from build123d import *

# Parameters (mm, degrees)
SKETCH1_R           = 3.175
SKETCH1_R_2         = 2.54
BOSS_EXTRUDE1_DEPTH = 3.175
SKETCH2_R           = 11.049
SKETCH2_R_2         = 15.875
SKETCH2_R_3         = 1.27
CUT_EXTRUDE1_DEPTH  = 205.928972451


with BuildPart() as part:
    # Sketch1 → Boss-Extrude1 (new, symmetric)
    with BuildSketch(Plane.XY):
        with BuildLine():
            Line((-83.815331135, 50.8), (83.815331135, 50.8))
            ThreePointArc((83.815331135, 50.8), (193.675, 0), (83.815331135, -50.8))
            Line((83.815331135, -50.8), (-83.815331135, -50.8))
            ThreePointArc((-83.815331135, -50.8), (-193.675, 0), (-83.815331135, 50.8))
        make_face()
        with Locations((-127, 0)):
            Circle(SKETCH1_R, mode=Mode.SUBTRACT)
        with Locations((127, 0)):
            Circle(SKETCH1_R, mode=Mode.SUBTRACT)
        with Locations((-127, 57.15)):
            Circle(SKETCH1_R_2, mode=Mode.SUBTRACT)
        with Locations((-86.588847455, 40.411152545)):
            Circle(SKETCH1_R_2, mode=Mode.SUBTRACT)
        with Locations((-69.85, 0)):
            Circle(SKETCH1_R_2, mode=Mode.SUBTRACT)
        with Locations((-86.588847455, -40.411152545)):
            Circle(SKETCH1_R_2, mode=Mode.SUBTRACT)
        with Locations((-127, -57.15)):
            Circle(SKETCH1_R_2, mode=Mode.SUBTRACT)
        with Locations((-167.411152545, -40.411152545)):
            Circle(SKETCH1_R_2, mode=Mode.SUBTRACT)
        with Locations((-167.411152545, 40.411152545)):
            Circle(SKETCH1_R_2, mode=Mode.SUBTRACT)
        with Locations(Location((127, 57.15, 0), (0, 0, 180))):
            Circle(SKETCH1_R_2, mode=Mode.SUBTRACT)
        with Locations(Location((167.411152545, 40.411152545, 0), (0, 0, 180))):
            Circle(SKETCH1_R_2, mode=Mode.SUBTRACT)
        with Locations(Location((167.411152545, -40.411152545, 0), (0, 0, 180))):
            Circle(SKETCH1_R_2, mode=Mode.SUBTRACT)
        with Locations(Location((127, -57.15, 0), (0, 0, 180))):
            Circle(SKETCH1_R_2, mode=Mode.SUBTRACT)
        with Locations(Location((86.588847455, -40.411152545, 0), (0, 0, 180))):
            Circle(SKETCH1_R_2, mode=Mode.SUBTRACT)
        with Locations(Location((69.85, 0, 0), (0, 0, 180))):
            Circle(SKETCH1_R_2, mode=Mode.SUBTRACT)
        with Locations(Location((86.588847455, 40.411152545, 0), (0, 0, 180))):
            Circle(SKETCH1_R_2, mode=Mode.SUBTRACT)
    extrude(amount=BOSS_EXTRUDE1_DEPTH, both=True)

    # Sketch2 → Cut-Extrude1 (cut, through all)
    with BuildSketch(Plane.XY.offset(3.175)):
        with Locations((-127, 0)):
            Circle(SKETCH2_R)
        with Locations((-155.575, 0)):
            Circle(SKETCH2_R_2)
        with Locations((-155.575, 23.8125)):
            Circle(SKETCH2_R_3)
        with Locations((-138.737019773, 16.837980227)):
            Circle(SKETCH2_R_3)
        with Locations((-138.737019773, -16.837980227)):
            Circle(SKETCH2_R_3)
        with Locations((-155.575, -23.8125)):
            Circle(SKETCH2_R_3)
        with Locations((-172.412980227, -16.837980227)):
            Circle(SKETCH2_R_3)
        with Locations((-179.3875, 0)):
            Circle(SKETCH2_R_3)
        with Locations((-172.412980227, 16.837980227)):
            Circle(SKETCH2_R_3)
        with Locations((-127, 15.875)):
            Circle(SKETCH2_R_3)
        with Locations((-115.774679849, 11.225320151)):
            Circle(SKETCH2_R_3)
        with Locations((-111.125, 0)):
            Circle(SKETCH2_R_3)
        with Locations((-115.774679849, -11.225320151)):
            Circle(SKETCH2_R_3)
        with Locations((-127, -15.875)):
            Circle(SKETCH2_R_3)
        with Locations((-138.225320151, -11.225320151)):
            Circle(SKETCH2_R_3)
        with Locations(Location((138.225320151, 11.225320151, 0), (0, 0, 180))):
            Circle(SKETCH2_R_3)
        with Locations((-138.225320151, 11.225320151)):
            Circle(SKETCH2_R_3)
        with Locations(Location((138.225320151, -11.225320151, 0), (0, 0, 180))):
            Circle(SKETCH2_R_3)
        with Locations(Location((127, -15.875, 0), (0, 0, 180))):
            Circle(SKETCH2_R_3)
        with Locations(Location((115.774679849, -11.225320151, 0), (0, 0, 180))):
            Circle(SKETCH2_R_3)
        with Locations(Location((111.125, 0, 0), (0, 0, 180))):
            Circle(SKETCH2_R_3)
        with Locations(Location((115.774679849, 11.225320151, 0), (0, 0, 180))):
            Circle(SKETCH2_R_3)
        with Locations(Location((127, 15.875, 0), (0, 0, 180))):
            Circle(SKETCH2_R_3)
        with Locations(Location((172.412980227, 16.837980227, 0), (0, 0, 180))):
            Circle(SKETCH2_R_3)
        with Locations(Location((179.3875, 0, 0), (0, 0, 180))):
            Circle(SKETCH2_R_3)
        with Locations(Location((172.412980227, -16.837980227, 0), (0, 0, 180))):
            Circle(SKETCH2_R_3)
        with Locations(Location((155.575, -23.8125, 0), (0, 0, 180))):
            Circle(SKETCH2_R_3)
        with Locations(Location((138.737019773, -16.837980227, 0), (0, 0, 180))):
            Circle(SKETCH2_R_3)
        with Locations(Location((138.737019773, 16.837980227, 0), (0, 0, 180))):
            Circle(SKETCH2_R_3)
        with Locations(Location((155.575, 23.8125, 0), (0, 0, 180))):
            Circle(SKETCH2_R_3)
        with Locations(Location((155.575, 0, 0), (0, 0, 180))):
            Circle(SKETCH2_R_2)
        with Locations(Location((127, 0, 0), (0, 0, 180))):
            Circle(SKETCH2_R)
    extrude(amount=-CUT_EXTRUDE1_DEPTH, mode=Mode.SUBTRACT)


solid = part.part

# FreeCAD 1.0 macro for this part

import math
import FreeCAD as App
import Part
import Sketcher
from FreeCAD import Vector
Q = App.Units.Quantity

doc = App.newDocument("Part")
body = doc.addObject("PartDesign::Body", "Body")

# Sketch on XY plane
sketch1 = body.newObject("Sketcher::SketchObject", "Sketch")
sketch1.AttachmentSupport = (doc.getObject("XY_Plane"), [""])
sketch1.MapMode = "FlatFace"
sketch1.addGeometry(Part.LineSegment(Vector(83.8, 50.8, 0), Vector(-83.8, 50.8, 0)), False)
sketch1.addGeometry(Part.ArcOfCircle(Part.Circle(Vector(-127, 0, 0), Vector(0, 0, 1), 66.7), math.radians(50), math.radians(310)), False)
sketch1.addGeometry(Part.LineSegment(Vector(-83.8, -50.8, 0), Vector(83.8, -50.8, 0)), False)
sketch1.addGeometry(Part.ArcOfCircle(Part.Circle(Vector(127, 0, 0), Vector(0, 0, 1), 66.7), math.radians(-130), math.radians(130)), False)
sketch1.addGeometry(Part.Circle(Vector(127, -57.1, 0), Vector(0, 0, 1), 2.5), False)
sketch1.addGeometry(Part.Circle(Vector(167.4, -40.4, 0), Vector(0, 0, 1), 2.5), False)
sketch1.addGeometry(Part.Circle(Vector(86.6, -40.4, 0), Vector(0, 0, 1), 2.5), False)
sketch1.addGeometry(Part.Circle(Vector(-127, -57.1, 0), Vector(0, 0, 1), 2.5), False)
sketch1.addGeometry(Part.Circle(Vector(-86.6, -40.4, 0), Vector(0, 0, 1), 2.5), False)
sketch1.addGeometry(Part.Circle(Vector(-167.4, -40.4, 0), Vector(0, 0, 1), 2.5), False)
sketch1.addGeometry(Part.Circle(Vector(127, 0, 0), Vector(0, 0, 1), 3.2), False)
sketch1.addGeometry(Part.Circle(Vector(69.8, 0, 0), Vector(0, 0, 1), 2.5), False)
sketch1.addGeometry(Part.Circle(Vector(167.4, 40.4, 0), Vector(0, 0, 1), 2.5), False)
sketch1.addGeometry(Part.Circle(Vector(86.6, 40.4, 0), Vector(0, 0, 1), 2.5), False)
sketch1.addGeometry(Part.Circle(Vector(127, 57.1, 0), Vector(0, 0, 1), 2.5), False)
sketch1.addGeometry(Part.Circle(Vector(-69.8, 0, 0), Vector(0, 0, 1), 2.5), False)
sketch1.addGeometry(Part.Circle(Vector(-127, 0, 0), Vector(0, 0, 1), 3.2), False)
sketch1.addGeometry(Part.Circle(Vector(-86.6, 40.4, 0), Vector(0, 0, 1), 2.5), False)
sketch1.addGeometry(Part.Circle(Vector(-167.4, 40.4, 0), Vector(0, 0, 1), 2.5), False)
sketch1.addGeometry(Part.Circle(Vector(-127, 57.1, 0), Vector(0, 0, 1), 2.5), False)
sketch1.addConstraint(Sketcher.Constraint("Coincident", 0, 2, 1, 1))
sketch1.addConstraint(Sketcher.Constraint("Coincident", 1, 2, 2, 1))
sketch1.addConstraint(Sketcher.Constraint("Coincident", 2, 2, 3, 1))
sketch1.addConstraint(Sketcher.Constraint("Coincident", 3, 2, 0, 1))
sketch1.addConstraint(Sketcher.Constraint("Horizontal", 0))
sketch1.addConstraint(Sketcher.Constraint("Horizontal", 2))
sketch1.addConstraint(Sketcher.Constraint("Coincident", 10, 3, 3, 3))
sketch1.addConstraint(Sketcher.Constraint("Coincident", 16, 3, 1, 3))
sketch1.addConstraint(Sketcher.Constraint("Equal", 1, 3))
sketch1.addConstraint(Sketcher.Constraint("Equal", 4, 5))
sketch1.addConstraint(Sketcher.Constraint("Equal", 5, 6))
sketch1.addConstraint(Sketcher.Constraint("Equal", 6, 7))
sketch1.addConstraint(Sketcher.Constraint("Equal", 7, 8))
sketch1.addConstraint(Sketcher.Constraint("Equal", 8, 9))
sketch1.addConstraint(Sketcher.Constraint("Equal", 9, 11))
sketch1.addConstraint(Sketcher.Constraint("Equal", 11, 12))
sketch1.addConstraint(Sketcher.Constraint("Equal", 12, 13))
sketch1.addConstraint(Sketcher.Constraint("Equal", 13, 14))
sketch1.addConstraint(Sketcher.Constraint("Equal", 14, 15))
sketch1.addConstraint(Sketcher.Constraint("Equal", 10, 16))
sketch1.addConstraint(Sketcher.Constraint("Equal", 15, 17))
sketch1.addConstraint(Sketcher.Constraint("Equal", 17, 18))
sketch1.addConstraint(Sketcher.Constraint("Equal", 18, 19))
sketch1.addConstraint(Sketcher.Constraint("Symmetric", 1, 3, 3, 3, -1, 1))
sketch1.addConstraint(Sketcher.Constraint("Symmetric", 9, 3, 12, 3, -1, 1))
sketch1.addConstraint(Sketcher.Constraint("Symmetric", 8, 3, 13, 3, -1, 1))
sketch1.addConstraint(Sketcher.Constraint("Symmetric", 7, 3, 14, 3, -1, 1))
sketch1.addConstraint(Sketcher.Constraint("Symmetric", 11, 3, 15, 3, -1, 1))
sketch1.addConstraint(Sketcher.Constraint("Symmetric", 6, 3, 17, 3, -1, 1))
sketch1.addConstraint(Sketcher.Constraint("Symmetric", 5, 3, 18, 3, -1, 1))
sketch1.addConstraint(Sketcher.Constraint("Symmetric", 4, 3, 19, 3, -1, 1))
sketch1.addConstraint(Sketcher.Constraint("Symmetric", 4, 3, 7, 3, -2))
sketch1.addConstraint(Sketcher.Constraint("Symmetric", 6, 3, 8, 3, -2))
sketch1.addConstraint(Sketcher.Constraint("Symmetric", 5, 3, 9, 3, -2))
sketch1.addConstraint(Sketcher.Constraint("Symmetric", 0, 2, 1, 2, -1))
sketch1.addConstraint(Sketcher.Constraint("PointOnObject", 11, 3, -1))
sketch1.addConstraint(Sketcher.Constraint("Horizontal", 5, 3, 6, 3))
sketch1.addConstraint(Sketcher.Constraint("Vertical", 3, 3, 4, 3))
sketch1.addConstraint(Sketcher.Constraint("Diameter", 4, Q("0.2 in")))
sketch1.addConstraint(Sketcher.Constraint("Diameter", 10, Q("0.25 in")))
sketch1.addConstraint(Sketcher.Constraint("DistanceX", 1, 3, -1, 1, Q("5 in")))
sketch1.addConstraint(Sketcher.Constraint("DistanceY", -1, 1, 0, 2, Q("2 in")))
sketch1.addConstraint(Sketcher.Constraint("Radius", 1, Q("2.625 in")))
sketch1.addConstraint(Sketcher.Constraint("DistanceX", 9, 3, 6, 3, Q("10 in")))
sketch1.addConstraint(Sketcher.Constraint("DistanceX", 15, 3, 11, 3, Q("5.5 in")))
sketch1.addConstraint(Sketcher.Constraint("DistanceY", 4, 3, -1, 1, Q("2.25 in")))
sketch1.addConstraint(Sketcher.Constraint("DistanceX", -1, 1, 5, 3, Q("167.411153 mm")))
sketch1.addConstraint(Sketcher.Constraint("DistanceY", 5, 3, -1, 1, Q("40.411153 mm")))
pad1 = body.newObject("PartDesign::Pad", "Pad")
pad1.Profile = sketch1
pad1.Length = Q("0.25 in")
pad1.Midplane = True

# Sketch on XY plane
sketch2 = body.newObject("Sketcher::SketchObject", "Sketch001")
sketch2.AttachmentSupport = (doc.getObject("XY_Plane"), [""])
sketch2.MapMode = "FlatFace"
sketch2.AttachmentOffset = App.Placement(Vector(0, 0, 0.125 * 25.4), App.Rotation())
sketch2.addGeometry(Part.Circle(Vector(-127, 0, 0), Vector(0, 0, 1), 11), False)
sketch2.addGeometry(Part.Circle(Vector(-155.6, 0, 0), Vector(0, 0, 1), 15.9), False)
sketch2.addGeometry(Part.Circle(Vector(-155.6, 23.8, 0), Vector(0, 0, 1), 1.3), False)
sketch2.addGeometry(Part.Circle(Vector(-138.7, 16.8, 0), Vector(0, 0, 1), 1.3), False)
sketch2.addGeometry(Part.Circle(Vector(-138.7, -16.8, 0), Vector(0, 0, 1), 1.3), False)
sketch2.addGeometry(Part.Circle(Vector(-155.6, -23.8, 0), Vector(0, 0, 1), 1.3), False)
sketch2.addGeometry(Part.Circle(Vector(-172.4, -16.8, 0), Vector(0, 0, 1), 1.3), False)
sketch2.addGeometry(Part.Circle(Vector(-179.4, 0, 0), Vector(0, 0, 1), 1.3), False)
sketch2.addGeometry(Part.Circle(Vector(-172.4, 16.8, 0), Vector(0, 0, 1), 1.3), False)
sketch2.addGeometry(Part.Circle(Vector(-127, 15.9, 0), Vector(0, 0, 1), 1.3), False)
sketch2.addGeometry(Part.Circle(Vector(-115.8, 11.2, 0), Vector(0, 0, 1), 1.3), False)
sketch2.addGeometry(Part.Circle(Vector(-111.1, 0, 0), Vector(0, 0, 1), 1.3), False)
sketch2.addGeometry(Part.Circle(Vector(-115.8, -11.2, 0), Vector(0, 0, 1), 1.3), False)
sketch2.addGeometry(Part.Circle(Vector(-127, -15.9, 0), Vector(0, 0, 1), 1.3), False)
sketch2.addGeometry(Part.Circle(Vector(-138.2, -11.2, 0), Vector(0, 0, 1), 1.3), False)
sketch2.addGeometry(Part.Circle(Vector(138.2, 11.2, 0), Vector(0, 0, 1), 1.3), False)
sketch2.addGeometry(Part.Circle(Vector(-138.2, 11.2, 0), Vector(0, 0, 1), 1.3), False)
sketch2.addGeometry(Part.Circle(Vector(138.2, -11.2, 0), Vector(0, 0, 1), 1.3), False)
sketch2.addGeometry(Part.Circle(Vector(127, -15.9, 0), Vector(0, 0, 1), 1.3), False)
sketch2.addGeometry(Part.Circle(Vector(115.8, -11.2, 0), Vector(0, 0, 1), 1.3), False)
sketch2.addGeometry(Part.Circle(Vector(111.1, 0, 0), Vector(0, 0, 1), 1.3), False)
sketch2.addGeometry(Part.Circle(Vector(115.8, 11.2, 0), Vector(0, 0, 1), 1.3), False)
sketch2.addGeometry(Part.Circle(Vector(127, 15.9, 0), Vector(0, 0, 1), 1.3), False)
sketch2.addGeometry(Part.Circle(Vector(172.4, 16.8, 0), Vector(0, 0, 1), 1.3), False)
sketch2.addGeometry(Part.Circle(Vector(179.4, 0, 0), Vector(0, 0, 1), 1.3), False)
sketch2.addGeometry(Part.Circle(Vector(172.4, -16.8, 0), Vector(0, 0, 1), 1.3), False)
sketch2.addGeometry(Part.Circle(Vector(155.6, -23.8, 0), Vector(0, 0, 1), 1.3), False)
sketch2.addGeometry(Part.Circle(Vector(138.7, -16.8, 0), Vector(0, 0, 1), 1.3), False)
sketch2.addGeometry(Part.Circle(Vector(138.7, 16.8, 0), Vector(0, 0, 1), 1.3), False)
sketch2.addGeometry(Part.Circle(Vector(155.6, 23.8, 0), Vector(0, 0, 1), 1.3), False)
sketch2.addGeometry(Part.Circle(Vector(155.6, 0, 0), Vector(0, 0, 1), 15.9), False)
sketch2.addGeometry(Part.Circle(Vector(127, 0, 0), Vector(0, 0, 1), 11), False)
sketch2.addConstraint(Sketcher.Constraint("Equal", 2, 3))
sketch2.addConstraint(Sketcher.Constraint("Equal", 3, 4))
sketch2.addConstraint(Sketcher.Constraint("Equal", 4, 5))
sketch2.addConstraint(Sketcher.Constraint("Equal", 5, 6))
sketch2.addConstraint(Sketcher.Constraint("Equal", 6, 7))
sketch2.addConstraint(Sketcher.Constraint("Equal", 7, 8))
sketch2.addConstraint(Sketcher.Constraint("Equal", 8, 9))
sketch2.addConstraint(Sketcher.Constraint("Equal", 9, 10))
sketch2.addConstraint(Sketcher.Constraint("Equal", 10, 11))
sketch2.addConstraint(Sketcher.Constraint("Equal", 11, 12))
sketch2.addConstraint(Sketcher.Constraint("Equal", 12, 13))
sketch2.addConstraint(Sketcher.Constraint("Equal", 13, 14))
sketch2.addConstraint(Sketcher.Constraint("Equal", 14, 15))
sketch2.addConstraint(Sketcher.Constraint("Equal", 15, 16))
sketch2.addConstraint(Sketcher.Constraint("Equal", 16, 17))
sketch2.addConstraint(Sketcher.Constraint("Equal", 17, 18))
sketch2.addConstraint(Sketcher.Constraint("Equal", 18, 19))
sketch2.addConstraint(Sketcher.Constraint("Equal", 19, 20))
sketch2.addConstraint(Sketcher.Constraint("Equal", 20, 21))
sketch2.addConstraint(Sketcher.Constraint("Equal", 21, 22))
sketch2.addConstraint(Sketcher.Constraint("Equal", 22, 23))
sketch2.addConstraint(Sketcher.Constraint("Equal", 23, 24))
sketch2.addConstraint(Sketcher.Constraint("Equal", 24, 25))
sketch2.addConstraint(Sketcher.Constraint("Equal", 25, 26))
sketch2.addConstraint(Sketcher.Constraint("Equal", 26, 27))
sketch2.addConstraint(Sketcher.Constraint("Equal", 27, 28))
sketch2.addConstraint(Sketcher.Constraint("Equal", 28, 29))
sketch2.addConstraint(Sketcher.Constraint("Equal", 1, 30))
sketch2.addConstraint(Sketcher.Constraint("Equal", 0, 31))
sketch2.addConstraint(Sketcher.Constraint("Symmetric", 14, 3, 15, 3, -1, 1))
sketch2.addConstraint(Sketcher.Constraint("Symmetric", 16, 3, 17, 3, -1, 1))
sketch2.addConstraint(Sketcher.Constraint("Symmetric", 9, 3, 18, 3, -1, 1))
sketch2.addConstraint(Sketcher.Constraint("Symmetric", 10, 3, 19, 3, -1, 1))
sketch2.addConstraint(Sketcher.Constraint("Symmetric", 11, 3, 20, 3, -1, 1))
sketch2.addConstraint(Sketcher.Constraint("Symmetric", 12, 3, 21, 3, -1, 1))
sketch2.addConstraint(Sketcher.Constraint("Symmetric", 13, 3, 22, 3, -1, 1))
sketch2.addConstraint(Sketcher.Constraint("Symmetric", 6, 3, 23, 3, -1, 1))
sketch2.addConstraint(Sketcher.Constraint("Symmetric", 7, 3, 24, 3, -1, 1))
sketch2.addConstraint(Sketcher.Constraint("Symmetric", 8, 3, 25, 3, -1, 1))
sketch2.addConstraint(Sketcher.Constraint("Symmetric", 2, 3, 26, 3, -1, 1))
sketch2.addConstraint(Sketcher.Constraint("Symmetric", 3, 3, 27, 3, -1, 1))
sketch2.addConstraint(Sketcher.Constraint("Symmetric", 4, 3, 28, 3, -1, 1))
sketch2.addConstraint(Sketcher.Constraint("Symmetric", 5, 3, 29, 3, -1, 1))
sketch2.addConstraint(Sketcher.Constraint("Symmetric", 1, 3, 30, 3, -1, 1))
sketch2.addConstraint(Sketcher.Constraint("Symmetric", 0, 3, 31, 3, -1, 1))
sketch2.addConstraint(Sketcher.Constraint("Symmetric", 15, 3, 16, 3, -2))
sketch2.addConstraint(Sketcher.Constraint("Symmetric", 13, 3, 18, 3, -2))
sketch2.addConstraint(Sketcher.Constraint("Symmetric", 12, 3, 19, 3, -2))
sketch2.addConstraint(Sketcher.Constraint("Symmetric", 8, 3, 23, 3, -2))
sketch2.addConstraint(Sketcher.Constraint("Symmetric", 5, 3, 26, 3, -2))
sketch2.addConstraint(Sketcher.Constraint("Symmetric", 4, 3, 27, 3, -2))
sketch2.addConstraint(Sketcher.Constraint("PointOnObject", 0, 3, -1))
sketch2.addConstraint(Sketcher.Constraint("PointOnObject", 1, 3, -1))
sketch2.addConstraint(Sketcher.Constraint("PointOnObject", 7, 3, -1))
sketch2.addConstraint(Sketcher.Constraint("PointOnObject", 11, 3, -1))
sketch2.addConstraint(Sketcher.Constraint("Horizontal", 4, 3, 6, 3))
sketch2.addConstraint(Sketcher.Constraint("Horizontal", 12, 3, 14, 3))
sketch2.addConstraint(Sketcher.Constraint("Vertical", 1, 3, 2, 3))
sketch2.addConstraint(Sketcher.Constraint("Vertical", 0, 3, 9, 3))
sketch2.addConstraint(Sketcher.Constraint("Diameter", 2, Q("0.1 in")))
sketch2.addConstraint(Sketcher.Constraint("Diameter", 0, Q("0.87 in")))
sketch2.addConstraint(Sketcher.Constraint("Diameter", 1, Q("1.25 in")))
sketch2.addConstraint(Sketcher.Constraint("DistanceX", 0, 3, -1, 1, Q("5 in")))
sketch2.addConstraint(Sketcher.Constraint("DistanceX", 10, 3, 15, 3, Q("10 in")))
sketch2.addConstraint(Sketcher.Constraint("DistanceX", 11, 3, 20, 3, Q("8.75 in")))
sketch2.addConstraint(Sketcher.Constraint("DistanceX", 1, 3, -1, 1, Q("6.125 in")))
sketch2.addConstraint(Sketcher.Constraint("DistanceY", -1, 1, 2, 3, Q("0.9375 in")))
sketch2.addConstraint(Sketcher.Constraint("DistanceX", 7, 3, -1, 1, Q("7.0625 in")))
sketch2.addConstraint(Sketcher.Constraint("DistanceY", -1, 1, 9, 3, Q("0.625 in")))
sketch2.addConstraint(Sketcher.Constraint("DistanceY", 4, 3, 10, 3, Q("28.0633 mm")))
sketch2.addConstraint(Sketcher.Constraint("DistanceX", 4, 3, 14, 3, Q("0.5117 mm")))
sketch2.addConstraint(Sketcher.Constraint("DistanceX", 21, 3, 23, 3, Q("56.6383 mm")))
sketch2.addConstraint(Sketcher.Constraint("DistanceX", 3, 3, -1, 1, Q("138.73702 mm")))
sketch2.addConstraint(Sketcher.Constraint("DistanceY", -1, 1, 3, 3, Q("16.83798 mm")))
pocket1 = body.newObject("PartDesign::Pocket", "Pocket")
pocket1.Profile = sketch2
pocket1.Type = "ThroughAll"

doc.recompute()
